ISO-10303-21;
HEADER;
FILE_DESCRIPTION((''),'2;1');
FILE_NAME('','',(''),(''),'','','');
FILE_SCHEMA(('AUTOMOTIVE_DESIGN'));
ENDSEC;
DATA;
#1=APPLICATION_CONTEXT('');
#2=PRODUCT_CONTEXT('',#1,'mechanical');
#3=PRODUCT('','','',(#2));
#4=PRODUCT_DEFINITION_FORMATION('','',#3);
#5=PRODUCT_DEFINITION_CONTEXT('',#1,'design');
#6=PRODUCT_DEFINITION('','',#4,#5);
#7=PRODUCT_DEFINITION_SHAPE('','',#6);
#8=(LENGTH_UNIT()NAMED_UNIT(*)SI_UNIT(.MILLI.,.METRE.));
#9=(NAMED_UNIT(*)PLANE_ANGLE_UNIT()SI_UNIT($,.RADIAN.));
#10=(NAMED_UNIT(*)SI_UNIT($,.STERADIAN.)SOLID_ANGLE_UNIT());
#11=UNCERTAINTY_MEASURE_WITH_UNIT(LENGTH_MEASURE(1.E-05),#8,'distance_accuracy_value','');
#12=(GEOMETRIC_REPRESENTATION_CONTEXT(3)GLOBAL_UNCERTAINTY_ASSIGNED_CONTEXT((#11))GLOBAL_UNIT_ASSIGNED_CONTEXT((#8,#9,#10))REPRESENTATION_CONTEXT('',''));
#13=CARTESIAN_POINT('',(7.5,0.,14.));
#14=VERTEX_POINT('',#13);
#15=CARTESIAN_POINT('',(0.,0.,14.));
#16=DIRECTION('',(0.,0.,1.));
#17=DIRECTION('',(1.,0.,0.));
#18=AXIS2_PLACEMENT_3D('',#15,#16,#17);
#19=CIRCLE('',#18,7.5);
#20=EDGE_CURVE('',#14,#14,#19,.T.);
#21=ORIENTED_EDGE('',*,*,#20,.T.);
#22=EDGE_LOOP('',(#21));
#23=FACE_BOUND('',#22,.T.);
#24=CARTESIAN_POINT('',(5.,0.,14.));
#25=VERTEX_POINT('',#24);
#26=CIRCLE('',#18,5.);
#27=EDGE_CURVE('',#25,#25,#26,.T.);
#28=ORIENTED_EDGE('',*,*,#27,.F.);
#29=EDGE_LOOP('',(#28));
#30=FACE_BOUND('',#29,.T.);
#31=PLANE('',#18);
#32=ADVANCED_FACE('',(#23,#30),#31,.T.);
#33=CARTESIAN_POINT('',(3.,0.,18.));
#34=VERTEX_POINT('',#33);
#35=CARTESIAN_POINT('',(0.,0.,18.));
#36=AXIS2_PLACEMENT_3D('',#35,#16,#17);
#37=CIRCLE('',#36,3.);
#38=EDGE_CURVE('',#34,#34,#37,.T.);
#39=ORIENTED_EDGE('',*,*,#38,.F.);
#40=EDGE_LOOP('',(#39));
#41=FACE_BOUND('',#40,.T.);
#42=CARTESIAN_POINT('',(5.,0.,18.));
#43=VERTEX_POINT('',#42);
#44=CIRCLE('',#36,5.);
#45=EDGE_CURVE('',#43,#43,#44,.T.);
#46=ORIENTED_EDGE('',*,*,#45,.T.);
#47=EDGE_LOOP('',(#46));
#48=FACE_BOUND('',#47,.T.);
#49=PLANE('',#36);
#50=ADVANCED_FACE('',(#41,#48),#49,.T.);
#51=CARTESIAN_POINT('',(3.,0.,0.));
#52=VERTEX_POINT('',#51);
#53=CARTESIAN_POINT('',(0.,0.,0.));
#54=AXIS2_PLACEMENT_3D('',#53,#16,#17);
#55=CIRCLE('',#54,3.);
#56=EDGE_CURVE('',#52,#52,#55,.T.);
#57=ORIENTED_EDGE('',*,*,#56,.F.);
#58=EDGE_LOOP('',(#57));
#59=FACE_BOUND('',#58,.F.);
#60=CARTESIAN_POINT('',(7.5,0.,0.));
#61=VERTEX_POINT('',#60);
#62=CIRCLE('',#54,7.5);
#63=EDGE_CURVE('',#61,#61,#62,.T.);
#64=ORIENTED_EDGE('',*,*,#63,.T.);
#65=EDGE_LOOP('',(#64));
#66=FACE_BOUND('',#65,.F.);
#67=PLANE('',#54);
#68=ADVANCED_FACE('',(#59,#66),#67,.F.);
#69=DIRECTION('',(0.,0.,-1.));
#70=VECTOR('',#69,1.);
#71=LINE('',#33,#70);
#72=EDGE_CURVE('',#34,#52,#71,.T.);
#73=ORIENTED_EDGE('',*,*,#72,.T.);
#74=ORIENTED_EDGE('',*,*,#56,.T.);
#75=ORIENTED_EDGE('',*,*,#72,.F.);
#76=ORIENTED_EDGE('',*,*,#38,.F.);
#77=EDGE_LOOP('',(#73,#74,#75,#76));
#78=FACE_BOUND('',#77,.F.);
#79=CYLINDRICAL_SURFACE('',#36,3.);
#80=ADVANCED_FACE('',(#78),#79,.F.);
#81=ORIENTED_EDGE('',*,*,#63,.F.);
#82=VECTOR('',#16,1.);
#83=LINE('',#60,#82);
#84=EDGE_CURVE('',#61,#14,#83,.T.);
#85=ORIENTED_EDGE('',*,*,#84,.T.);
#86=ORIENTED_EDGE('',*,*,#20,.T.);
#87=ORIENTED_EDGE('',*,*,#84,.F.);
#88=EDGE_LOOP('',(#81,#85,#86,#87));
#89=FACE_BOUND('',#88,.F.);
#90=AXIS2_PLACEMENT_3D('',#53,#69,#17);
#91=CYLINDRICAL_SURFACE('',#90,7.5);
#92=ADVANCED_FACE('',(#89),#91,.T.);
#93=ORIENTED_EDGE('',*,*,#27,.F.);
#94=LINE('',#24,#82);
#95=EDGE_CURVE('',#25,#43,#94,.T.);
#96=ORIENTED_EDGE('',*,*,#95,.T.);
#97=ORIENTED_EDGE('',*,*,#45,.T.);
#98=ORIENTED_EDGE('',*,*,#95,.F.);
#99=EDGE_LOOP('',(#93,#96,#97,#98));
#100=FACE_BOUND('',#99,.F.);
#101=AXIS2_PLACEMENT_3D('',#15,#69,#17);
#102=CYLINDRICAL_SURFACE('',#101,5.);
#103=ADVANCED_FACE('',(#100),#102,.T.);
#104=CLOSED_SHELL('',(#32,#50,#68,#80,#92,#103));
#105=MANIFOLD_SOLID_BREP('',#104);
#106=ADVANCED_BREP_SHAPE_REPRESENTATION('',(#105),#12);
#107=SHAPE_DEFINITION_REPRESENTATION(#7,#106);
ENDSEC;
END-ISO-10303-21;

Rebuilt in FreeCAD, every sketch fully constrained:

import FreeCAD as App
import Part
import Sketcher

V = App.Vector
Q = App.Units.Quantity

doc = App.newDocument("Part")
body = doc.addObject("PartDesign::Body", "Body")

# Sketch on XY plane
sketch1 = doc.addObject("Sketcher::SketchObject", "Sketch")
body.addObject(sketch1)
sketch1.AttachmentSupport = (doc.XY_Plane, [""])
sketch1.MapMode = "FlatFace"
sketch1.addGeometry(Part.Circle(V(0, 0, 0), V(0, 0, 1), 7.5), False)
sketch1.addConstraint([
    Sketcher.Constraint("Coincident", 0, 3, -1, 1),
    Sketcher.Constraint("Diameter", 0, Q("15 mm")),
])
pad1 = doc.addObject("PartDesign::Pad", "Pad")
body.addObject(pad1)
pad1.Profile = sketch1
pad1.Length = 14

# Sketch on XY plane
sketch2 = doc.addObject("Sketcher::SketchObject", "Sketch001")
body.addObject(sketch2)
sketch2.AttachmentSupport = (doc.XY_Plane, [""])
sketch2.MapMode = "FlatFace"
sketch2.AttachmentOffset = App.Placement(V(0, 0, 14), App.Rotation())
sketch2.addGeometry(Part.Circle(V(0, 0, 0), V(0, 0, 1), 5), False)
sketch2.addConstraint([
    Sketcher.Constraint("Coincident", 0, 3, -1, 1),
    Sketcher.Constraint("Diameter", 0, Q("10 mm")),
])
pad2 = doc.addObject("PartDesign::Pad", "Pad001")
body.addObject(pad2)
pad2.Profile = sketch2
pad2.Length = 4

# Sketch on XY plane
sketch3 = doc.addObject("Sketcher::SketchObject", "Sketch002")
body.addObject(sketch3)
sketch3.AttachmentSupport = (doc.XY_Plane, [""])
sketch3.MapMode = "FlatFace"
sketch3.AttachmentOffset = App.Placement(V(0, 0, 18), App.Rotation())
sketch3.addGeometry(Part.Circle(V(0, 0, 0), V(0, 0, 1), 3), False)
sketch3.addConstraint([
    Sketcher.Constraint("Coincident", 0, 3, -1, 1),
    Sketcher.Constraint("Diameter", 0, Q("6 mm")),
])
pocket1 = doc.addObject("PartDesign::Pocket", "Pocket")
body.addObject(pocket1)
pocket1.Profile = sketch3
pocket1.Type = "ThroughAll"

doc.recompute()
